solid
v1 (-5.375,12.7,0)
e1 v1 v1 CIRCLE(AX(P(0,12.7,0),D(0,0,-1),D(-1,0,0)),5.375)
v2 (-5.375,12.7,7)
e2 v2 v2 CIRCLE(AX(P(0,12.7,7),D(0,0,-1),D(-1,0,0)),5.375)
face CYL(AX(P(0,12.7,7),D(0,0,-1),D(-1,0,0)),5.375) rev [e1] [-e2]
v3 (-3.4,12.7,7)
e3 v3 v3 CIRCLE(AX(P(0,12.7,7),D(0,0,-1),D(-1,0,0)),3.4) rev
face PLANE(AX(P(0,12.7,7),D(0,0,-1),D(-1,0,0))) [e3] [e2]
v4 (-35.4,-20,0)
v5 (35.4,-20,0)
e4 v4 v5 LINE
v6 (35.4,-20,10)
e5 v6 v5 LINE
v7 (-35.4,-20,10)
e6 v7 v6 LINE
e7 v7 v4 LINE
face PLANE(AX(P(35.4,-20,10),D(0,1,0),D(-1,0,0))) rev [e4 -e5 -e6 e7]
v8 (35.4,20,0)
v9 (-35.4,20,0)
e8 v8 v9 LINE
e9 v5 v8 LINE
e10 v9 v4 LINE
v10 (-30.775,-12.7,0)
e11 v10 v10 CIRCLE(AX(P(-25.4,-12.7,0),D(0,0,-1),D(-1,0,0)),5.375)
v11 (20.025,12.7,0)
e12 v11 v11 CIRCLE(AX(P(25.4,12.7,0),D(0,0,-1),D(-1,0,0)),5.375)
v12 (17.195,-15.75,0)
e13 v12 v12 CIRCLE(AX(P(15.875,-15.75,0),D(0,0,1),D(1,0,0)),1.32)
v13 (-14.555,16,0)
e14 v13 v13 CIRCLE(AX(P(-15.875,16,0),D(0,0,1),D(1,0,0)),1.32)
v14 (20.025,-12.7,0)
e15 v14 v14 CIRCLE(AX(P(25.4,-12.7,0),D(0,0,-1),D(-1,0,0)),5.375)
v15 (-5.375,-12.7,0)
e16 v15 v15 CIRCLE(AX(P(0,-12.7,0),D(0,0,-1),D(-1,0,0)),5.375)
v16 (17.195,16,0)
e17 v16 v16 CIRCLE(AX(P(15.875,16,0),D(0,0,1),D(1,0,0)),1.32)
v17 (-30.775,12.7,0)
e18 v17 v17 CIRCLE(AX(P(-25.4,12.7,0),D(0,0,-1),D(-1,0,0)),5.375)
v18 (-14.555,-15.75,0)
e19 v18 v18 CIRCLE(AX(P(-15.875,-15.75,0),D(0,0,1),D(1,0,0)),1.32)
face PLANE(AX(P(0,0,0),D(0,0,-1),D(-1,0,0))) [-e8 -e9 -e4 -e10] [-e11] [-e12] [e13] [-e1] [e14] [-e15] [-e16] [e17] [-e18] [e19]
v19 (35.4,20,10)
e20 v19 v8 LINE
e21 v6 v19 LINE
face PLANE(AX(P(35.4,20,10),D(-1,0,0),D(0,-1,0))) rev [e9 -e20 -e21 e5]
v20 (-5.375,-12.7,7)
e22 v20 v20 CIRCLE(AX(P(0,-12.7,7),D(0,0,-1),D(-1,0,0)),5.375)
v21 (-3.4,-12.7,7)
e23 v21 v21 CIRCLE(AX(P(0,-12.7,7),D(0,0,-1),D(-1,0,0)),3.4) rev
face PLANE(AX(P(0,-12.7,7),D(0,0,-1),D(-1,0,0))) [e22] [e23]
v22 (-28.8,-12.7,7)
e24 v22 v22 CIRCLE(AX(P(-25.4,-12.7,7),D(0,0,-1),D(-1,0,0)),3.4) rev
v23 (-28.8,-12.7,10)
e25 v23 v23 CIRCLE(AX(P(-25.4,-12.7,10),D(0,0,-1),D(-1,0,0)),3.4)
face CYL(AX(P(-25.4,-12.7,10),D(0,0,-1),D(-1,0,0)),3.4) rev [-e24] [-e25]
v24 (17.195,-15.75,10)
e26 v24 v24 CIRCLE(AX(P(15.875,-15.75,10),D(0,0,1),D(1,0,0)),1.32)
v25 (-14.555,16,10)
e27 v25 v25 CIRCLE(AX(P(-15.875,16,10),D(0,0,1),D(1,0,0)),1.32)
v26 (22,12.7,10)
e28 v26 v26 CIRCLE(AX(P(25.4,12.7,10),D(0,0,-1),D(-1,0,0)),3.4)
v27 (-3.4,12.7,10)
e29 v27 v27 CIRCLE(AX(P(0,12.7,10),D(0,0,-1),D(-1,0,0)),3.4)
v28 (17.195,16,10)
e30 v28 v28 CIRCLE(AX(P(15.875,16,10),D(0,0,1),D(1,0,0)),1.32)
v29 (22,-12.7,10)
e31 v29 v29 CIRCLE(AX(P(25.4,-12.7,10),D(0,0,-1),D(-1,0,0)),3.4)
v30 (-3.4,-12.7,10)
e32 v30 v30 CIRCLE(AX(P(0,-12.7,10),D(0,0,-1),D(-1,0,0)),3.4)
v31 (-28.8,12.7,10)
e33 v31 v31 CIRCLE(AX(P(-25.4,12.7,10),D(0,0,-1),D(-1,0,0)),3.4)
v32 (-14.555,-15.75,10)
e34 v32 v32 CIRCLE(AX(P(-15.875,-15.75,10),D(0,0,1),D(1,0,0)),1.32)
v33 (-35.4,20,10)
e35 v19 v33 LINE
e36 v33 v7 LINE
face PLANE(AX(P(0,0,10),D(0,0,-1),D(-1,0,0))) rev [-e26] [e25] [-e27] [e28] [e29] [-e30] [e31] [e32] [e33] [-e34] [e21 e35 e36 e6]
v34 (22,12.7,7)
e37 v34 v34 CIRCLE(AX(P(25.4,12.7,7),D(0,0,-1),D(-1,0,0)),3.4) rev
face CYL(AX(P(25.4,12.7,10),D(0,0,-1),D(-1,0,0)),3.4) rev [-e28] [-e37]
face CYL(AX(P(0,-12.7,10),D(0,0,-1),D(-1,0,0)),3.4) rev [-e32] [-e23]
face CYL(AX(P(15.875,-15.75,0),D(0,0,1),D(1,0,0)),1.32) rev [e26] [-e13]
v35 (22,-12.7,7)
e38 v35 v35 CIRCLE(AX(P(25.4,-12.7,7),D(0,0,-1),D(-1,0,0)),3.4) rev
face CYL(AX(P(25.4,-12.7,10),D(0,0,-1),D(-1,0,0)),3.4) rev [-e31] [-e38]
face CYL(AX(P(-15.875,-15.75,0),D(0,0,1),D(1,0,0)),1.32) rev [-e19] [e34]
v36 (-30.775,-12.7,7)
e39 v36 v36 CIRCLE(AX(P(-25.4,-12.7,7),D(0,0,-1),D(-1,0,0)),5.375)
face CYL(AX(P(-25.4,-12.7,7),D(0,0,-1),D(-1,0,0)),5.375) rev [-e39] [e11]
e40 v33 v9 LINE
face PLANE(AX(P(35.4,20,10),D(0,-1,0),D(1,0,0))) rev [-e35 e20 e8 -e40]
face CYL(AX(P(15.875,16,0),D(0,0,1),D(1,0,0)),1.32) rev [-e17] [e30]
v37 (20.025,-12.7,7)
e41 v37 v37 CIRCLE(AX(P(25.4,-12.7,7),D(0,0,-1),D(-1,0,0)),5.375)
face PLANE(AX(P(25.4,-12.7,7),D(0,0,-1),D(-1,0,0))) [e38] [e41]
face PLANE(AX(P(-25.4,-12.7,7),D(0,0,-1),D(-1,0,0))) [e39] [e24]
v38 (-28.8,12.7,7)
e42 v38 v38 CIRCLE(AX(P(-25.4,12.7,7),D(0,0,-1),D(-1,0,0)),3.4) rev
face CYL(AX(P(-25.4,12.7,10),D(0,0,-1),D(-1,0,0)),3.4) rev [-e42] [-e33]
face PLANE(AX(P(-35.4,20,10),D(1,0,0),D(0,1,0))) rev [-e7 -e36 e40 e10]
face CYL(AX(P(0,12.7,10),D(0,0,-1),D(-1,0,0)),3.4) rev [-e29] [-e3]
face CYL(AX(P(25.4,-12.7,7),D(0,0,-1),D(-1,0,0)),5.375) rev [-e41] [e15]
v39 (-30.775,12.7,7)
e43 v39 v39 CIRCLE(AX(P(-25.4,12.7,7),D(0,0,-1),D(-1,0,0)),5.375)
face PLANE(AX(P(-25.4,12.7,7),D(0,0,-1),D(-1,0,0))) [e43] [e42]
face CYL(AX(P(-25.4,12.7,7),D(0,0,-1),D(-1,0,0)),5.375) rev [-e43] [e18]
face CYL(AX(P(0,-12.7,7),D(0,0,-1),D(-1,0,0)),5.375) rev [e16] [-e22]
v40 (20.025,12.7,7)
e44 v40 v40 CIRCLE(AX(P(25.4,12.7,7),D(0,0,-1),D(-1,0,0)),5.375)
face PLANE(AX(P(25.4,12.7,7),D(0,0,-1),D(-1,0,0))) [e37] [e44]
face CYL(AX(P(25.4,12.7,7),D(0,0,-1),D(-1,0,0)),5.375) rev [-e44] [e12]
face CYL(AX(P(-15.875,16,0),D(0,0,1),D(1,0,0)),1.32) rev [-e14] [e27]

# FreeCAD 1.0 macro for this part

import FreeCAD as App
import Part
import Sketcher

V = App.Vector
Q = App.Units.Quantity

doc = App.newDocument("Part")
body = doc.addObject("PartDesign::Body", "Body")

# Sketch on XY plane
sketch1 = body.newObject("Sketcher::SketchObject", "Sketch")
sketch1.AttachmentSupport = (doc.getObject("XY_Plane"), [""])
sketch1.MapMode = "FlatFace"
sketch1.addGeometry(Part.LineSegment(V(-35, 20, 0), V(-35, -20, 0)), False)
sketch1.addGeometry(Part.LineSegment(V(-35, -20, 0), V(35, -20, 0)), False)
sketch1.addGeometry(Part.LineSegment(V(35, -20, 0), V(35, 20, 0)), False)
sketch1.addGeometry(Part.LineSegment(V(35, 20, 0), V(-35, 20, 0)), False)
sketch1.addConstraint(Sketcher.Constraint("Coincident", 0, 2, 1, 1))
sketch1.addConstraint(Sketcher.Constraint("Coincident", 1, 2, 2, 1))
sketch1.addConstraint(Sketcher.Constraint("Coincident", 2, 2, 3, 1))
sketch1.addConstraint(Sketcher.Constraint("Coincident", 3, 2, 0, 1))
sketch1.addConstraint(Sketcher.Constraint("Vertical", 0))
sketch1.addConstraint(Sketcher.Constraint("Horizontal", 1))
sketch1.addConstraint(Sketcher.Constraint("Vertical", 2))
sketch1.addConstraint(Sketcher.Constraint("Horizontal", 3))
sketch1.addConstraint(Sketcher.Constraint("Symmetric", 0, 2, 2, 2, -1, 1))
sketch1.addConstraint(Sketcher.Constraint("DistanceY", 0, 2, 0, 1, Q("40 mm")))
sketch1.addConstraint(Sketcher.Constraint("DistanceX", 1, 1, 1, 2, Q("70.8 mm")))
pad1 = body.newObject("PartDesign::Pad", "Pad")
pad1.Profile = sketch1
pad1.Length = 10

# Sketch on XY plane
sketch2 = body.newObject("Sketcher::SketchObject", "Sketch001")
sketch2.AttachmentSupport = (doc.getObject("XY_Plane"), [""])
sketch2.MapMode = "FlatFace"
sketch2.AttachmentOffset = App.Placement(V(0, 0, 10), App.Rotation())
sketch2.addGeometry(Part.Circle(V(15.9, -15.8, 0), V(0, 0, 1), 1.3), False)
sketch2.addGeometry(Part.Circle(V(-15.9, -15.8, 0), V(0, 0, 1), 1.3), False)
sketch2.addGeometry(Part.Circle(V(-15.9, 16, 0), V(0, 0, 1), 1.3), False)
sketch2.addGeometry(Part.Circle(V(15.9, 16, 0), V(0, 0, 1), 1.3), False)
sketch2.addConstraint(Sketcher.Constraint("Equal", 0, 1))
sketch2.addConstraint(Sketcher.Constraint("Equal", 1, 2))
sketch2.addConstraint(Sketcher.Constraint("Equal", 2, 3))
sketch2.addConstraint(Sketcher.Constraint("Symmetric", 0, 3, 1, 3, -2))
sketch2.addConstraint(Sketcher.Constraint("Symmetric", 2, 3, 3, 3, -2))
sketch2.addConstraint(Sketcher.Constraint("Vertical", 1, 3, 2, 3))
sketch2.addConstraint(Sketcher.Constraint("Diameter", 0, Q("2.64 mm")))
sketch2.addConstraint(Sketcher.Constraint("DistanceY", -1, 1, 2, 3, Q("16 mm")))
sketch2.addConstraint(Sketcher.Constraint("DistanceY", 0, 3, -1, 1, Q("15.75 mm")))
sketch2.addConstraint(Sketcher.Constraint("DistanceX", 1, 3, 0, 3, Q("31.75 mm")))
pocket1 = body.newObject("PartDesign::Pocket", "Pocket")
pocket1.Profile = sketch2
pocket1.Type = "ThroughAll"

# Sketch on XY plane
sketch3 = body.newObject("Sketcher::SketchObject", "Sketch002")
sketch3.AttachmentSupport = (doc.getObject("XY_Plane"), [""])
sketch3.MapMode = "FlatFace"
sketch3.addGeometry(Part.Circle(V(25.4, -12.7, 0), V(0, 0, 1), 3.4), False)
sketch3.addGeometry(Part.Circle(V(0, -12.7, 0), V(0, 0, 1), 3.4), False)
sketch3.addGeometry(Part.Circle(V(-25.4, -12.7, 0), V(0, 0, 1), 3.4), False)
sketch3.addGeometry(Part.Circle(V(0, 12.7, 0), V(0, 0, 1), 3.4), False)
sketch3.addGeometry(Part.Circle(V(-25.4, 12.7, 0), V(0, 0, 1), 3.4), False)
sketch3.addGeometry(Part.Circle(V(25.4, 12.7, 0), V(0, 0, 1), 3.4), False)
sketch3.addConstraint(Sketcher.Constraint("Equal", 0, 1))
sketch3.addConstraint(Sketcher.Constraint("Equal", 1, 2))
sketch3.addConstraint(Sketcher.Constraint("Equal", 2, 3))
sketch3.addConstraint(Sketcher.Constraint("Equal", 3, 4))
sketch3.addConstraint(Sketcher.Constraint("Equal", 4, 5))
sketch3.addConstraint(Sketcher.Constraint("Symmetric", 1, 3, 3, 3, -1, 1))
sketch3.addConstraint(Sketcher.Constraint("Symmetric", 0, 3, 4, 3, -1, 1))
sketch3.addConstraint(Sketcher.Constraint("Symmetric", 2, 3, 5, 3, -1, 1))
sketch3.addConstraint(Sketcher.Constraint("Symmetric", 0, 3, 2, 3, -2))
sketch3.addConstraint(Sketcher.Constraint("PointOnObject", 1, 3, -2))
sketch3.addConstraint(Sketcher.Constraint("Horizontal", 0, 3, 1, 3))
sketch3.addConstraint(Sketcher.Constraint("Diameter", 0, Q("6.8 mm")))
sketch3.addConstraint(Sketcher.Constraint("DistanceX", -1, 1, 0, 3, Q("25.4 mm")))
sketch3.addConstraint(Sketcher.Constraint("DistanceY", 0, 3, -1, 1, Q("12.7 mm")))
pocket2 = body.newObject("PartDesign::Pocket", "Pocket001")
pocket2.Profile = sketch3
pocket2.Type = "ThroughAll"
pocket2.Reversed = True

# Sketch on XY plane
sketch4 = body.newObject("Sketcher::SketchObject", "Sketch003")
sketch4.AttachmentSupport = (doc.getObject("XY_Plane"), [""])
sketch4.MapMode = "FlatFace"
sketch4.addGeometry(Part.Circle(V(-25, -13, 0), V(0, 0, 1), 5), False)
sketch4.addGeometry(Part.Circle(V(0, -13, 0), V(0, 0, 1), 5), False)
sketch4.addGeometry(Part.Circle(V(25, -13, 0), V(0, 0, 1), 5), False)
sketch4.addGeometry(Part.Circle(V(0, 13, 0), V(0, 0, 1), 5), False)
sketch4.addGeometry(Part.Circle(V(25, 13, 0), V(0, 0, 1), 5), False)
sketch4.addGeometry(Part.Circle(V(-25, 13, 0), V(0, 0, 1), 5), False)
sketch4.addConstraint(Sketcher.Constraint("Equal", 0, 1))
sketch4.addConstraint(Sketcher.Constraint("Equal", 1, 2))
sketch4.addConstraint(Sketcher.Constraint("Equal", 2, 3))
sketch4.addConstraint(Sketcher.Constraint("Equal", 3, 4))
sketch4.addConstraint(Sketcher.Constraint("Equal", 4, 5))
sketch4.addConstraint(Sketcher.Constraint("Symmetric", 1, 3, 3, 3, -1, 1))
sketch4.addConstraint(Sketcher.Constraint("Symmetric", 0, 3, 4, 3, -1, 1))
sketch4.addConstraint(Sketcher.Constraint("Symmetric", 2, 3, 5, 3, -1, 1))
sketch4.addConstraint(Sketcher.Constraint("Symmetric", 0, 3, 2, 3, -2))
sketch4.addConstraint(Sketcher.Constraint("PointOnObject", 1, 3, -2))
sketch4.addConstraint(Sketcher.Constraint("Horizontal", 0, 3, 1, 3))
sketch4.addConstraint(Sketcher.Constraint("Diameter", 0, Q("10.75 mm")))
sketch4.addConstraint(Sketcher.Constraint("DistanceX", 0, 3, -1, 1, Q("25.4 mm")))
sketch4.addConstraint(Sketcher.Constraint("DistanceY", 0, 3, -1, 1, Q("12.7 mm")))
pocket3 = body.newObject("PartDesign::Pocket", "Pocket002")
pocket3.Profile = sketch4
pocket3.Length = 7
pocket3.Reversed = True

doc.recompute()
